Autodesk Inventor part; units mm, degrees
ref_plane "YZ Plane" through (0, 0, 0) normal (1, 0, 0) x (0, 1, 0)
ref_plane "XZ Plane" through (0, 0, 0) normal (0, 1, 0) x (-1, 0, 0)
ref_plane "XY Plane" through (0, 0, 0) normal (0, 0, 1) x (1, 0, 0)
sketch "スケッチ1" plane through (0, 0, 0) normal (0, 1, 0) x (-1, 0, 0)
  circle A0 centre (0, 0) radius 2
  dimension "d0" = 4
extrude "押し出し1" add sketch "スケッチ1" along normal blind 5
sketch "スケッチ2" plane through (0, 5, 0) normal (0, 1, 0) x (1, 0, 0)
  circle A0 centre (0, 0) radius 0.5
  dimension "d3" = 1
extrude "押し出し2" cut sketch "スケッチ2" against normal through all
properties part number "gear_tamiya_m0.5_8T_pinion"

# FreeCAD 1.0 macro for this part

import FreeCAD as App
import Part
import Sketcher

V = App.Vector

doc = App.newDocument("Part")
body = doc.addObject("PartDesign::Body", "Body")

sketch1 = body.newObject("Sketcher::SketchObject", "Sketch")
sketch1.AttachmentSupport = (doc.getObject("XZ_Plane"), [""])
sketch1.MapMode = "FlatFace"
sketch1.addGeometry(Part.Circle(V(0, 0, 0), V(0, 0, 1), 2), False)
sketch1.addConstraint([
    Sketcher.Constraint("Coincident", 0, 3, -1, 1),
    Sketcher.Constraint("Diameter", 0, 4.0),
])
pad1 = body.newObject("PartDesign::Pad", "Pad")
pad1.Profile = sketch1
pad1.Length = 5
pad1.Reversed = True

sketch2 = body.newObject("Sketcher::SketchObject", "Sketch001")
sketch2.AttachmentSupport = (doc.getObject("XZ_Plane"), [""])
sketch2.MapMode = "FlatFace"
sketch2.AttachmentOffset = App.Placement(V(0, 0, -5), App.Rotation())
sketch2.addGeometry(Part.Circle(V(0, 0, 0), V(0, 0, 1), 0.5), False)
sketch2.addConstraint([
    Sketcher.Constraint("Coincident", 0, 3, -1, 1),
    Sketcher.Constraint("Diameter", 0, 1.0),
])
pocket1 = body.newObject("PartDesign::Pocket", "Pocket")
pocket1.Profile = sketch2
pocket1.Type = "ThroughAll"
pocket1.Reversed = True

doc.recompute()
